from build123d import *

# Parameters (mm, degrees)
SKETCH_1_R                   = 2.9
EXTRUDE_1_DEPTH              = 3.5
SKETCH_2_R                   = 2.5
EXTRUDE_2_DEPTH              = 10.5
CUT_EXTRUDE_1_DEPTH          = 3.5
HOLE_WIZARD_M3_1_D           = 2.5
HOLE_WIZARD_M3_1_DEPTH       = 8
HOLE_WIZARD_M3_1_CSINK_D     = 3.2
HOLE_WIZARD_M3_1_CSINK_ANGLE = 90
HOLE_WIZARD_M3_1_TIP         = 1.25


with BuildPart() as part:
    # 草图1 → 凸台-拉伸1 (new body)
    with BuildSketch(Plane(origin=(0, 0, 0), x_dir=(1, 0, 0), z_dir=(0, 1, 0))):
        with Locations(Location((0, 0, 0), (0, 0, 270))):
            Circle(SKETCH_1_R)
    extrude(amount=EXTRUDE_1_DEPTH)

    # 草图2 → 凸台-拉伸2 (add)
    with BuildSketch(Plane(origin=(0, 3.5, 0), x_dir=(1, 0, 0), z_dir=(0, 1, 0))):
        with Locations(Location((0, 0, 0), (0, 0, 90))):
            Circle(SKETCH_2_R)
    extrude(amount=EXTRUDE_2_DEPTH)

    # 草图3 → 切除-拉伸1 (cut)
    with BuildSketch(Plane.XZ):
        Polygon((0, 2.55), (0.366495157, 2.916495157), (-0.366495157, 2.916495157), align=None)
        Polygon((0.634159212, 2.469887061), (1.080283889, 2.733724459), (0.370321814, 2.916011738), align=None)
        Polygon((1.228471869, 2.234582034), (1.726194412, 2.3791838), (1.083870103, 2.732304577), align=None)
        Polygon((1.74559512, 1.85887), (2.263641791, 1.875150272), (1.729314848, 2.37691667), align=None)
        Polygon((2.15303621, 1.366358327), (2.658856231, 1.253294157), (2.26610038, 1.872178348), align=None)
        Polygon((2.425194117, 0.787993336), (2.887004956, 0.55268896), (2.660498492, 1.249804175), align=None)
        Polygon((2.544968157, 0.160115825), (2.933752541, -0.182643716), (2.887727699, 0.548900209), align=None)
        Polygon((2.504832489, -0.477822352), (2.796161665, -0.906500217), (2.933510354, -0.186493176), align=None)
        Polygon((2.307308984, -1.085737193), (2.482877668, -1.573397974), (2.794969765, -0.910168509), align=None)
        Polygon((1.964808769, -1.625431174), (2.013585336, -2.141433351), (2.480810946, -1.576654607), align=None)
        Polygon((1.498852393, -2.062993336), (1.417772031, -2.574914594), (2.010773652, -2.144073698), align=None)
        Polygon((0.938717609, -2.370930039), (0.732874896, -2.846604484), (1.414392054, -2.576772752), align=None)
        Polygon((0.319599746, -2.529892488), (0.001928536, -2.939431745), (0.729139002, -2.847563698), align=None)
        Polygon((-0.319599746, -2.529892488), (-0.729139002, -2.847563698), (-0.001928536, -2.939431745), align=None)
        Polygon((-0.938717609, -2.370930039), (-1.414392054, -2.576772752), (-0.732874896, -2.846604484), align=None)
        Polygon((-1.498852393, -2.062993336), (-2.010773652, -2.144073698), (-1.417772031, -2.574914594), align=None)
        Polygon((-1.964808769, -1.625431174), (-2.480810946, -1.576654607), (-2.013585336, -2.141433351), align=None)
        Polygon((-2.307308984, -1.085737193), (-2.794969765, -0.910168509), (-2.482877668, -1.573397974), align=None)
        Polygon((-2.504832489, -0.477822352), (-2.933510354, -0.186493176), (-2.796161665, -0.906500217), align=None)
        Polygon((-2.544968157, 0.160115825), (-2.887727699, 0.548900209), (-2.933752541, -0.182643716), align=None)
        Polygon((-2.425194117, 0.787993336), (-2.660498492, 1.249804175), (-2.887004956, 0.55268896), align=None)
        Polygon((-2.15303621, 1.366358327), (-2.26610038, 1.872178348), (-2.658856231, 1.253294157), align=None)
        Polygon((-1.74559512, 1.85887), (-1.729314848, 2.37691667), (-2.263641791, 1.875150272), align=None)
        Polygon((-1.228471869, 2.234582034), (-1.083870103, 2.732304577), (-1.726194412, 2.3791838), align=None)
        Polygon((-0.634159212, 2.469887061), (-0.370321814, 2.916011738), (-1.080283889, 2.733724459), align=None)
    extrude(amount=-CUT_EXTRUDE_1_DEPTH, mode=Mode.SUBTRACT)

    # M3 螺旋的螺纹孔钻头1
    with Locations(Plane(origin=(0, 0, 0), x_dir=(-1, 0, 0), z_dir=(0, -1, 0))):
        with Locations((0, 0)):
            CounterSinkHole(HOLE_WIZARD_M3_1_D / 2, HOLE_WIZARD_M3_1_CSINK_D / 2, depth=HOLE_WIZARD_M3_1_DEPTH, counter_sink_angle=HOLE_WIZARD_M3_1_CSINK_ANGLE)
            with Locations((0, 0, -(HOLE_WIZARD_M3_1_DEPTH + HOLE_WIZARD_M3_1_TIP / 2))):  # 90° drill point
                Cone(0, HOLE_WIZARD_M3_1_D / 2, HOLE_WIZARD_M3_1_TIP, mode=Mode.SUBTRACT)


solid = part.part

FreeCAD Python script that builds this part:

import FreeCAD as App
import Part
import Sketcher

V = App.Vector
Q = App.Units.Quantity

doc = App.newDocument("Part")
body = doc.addObject("PartDesign::Body", "Body")

# Sketch on XZ plane
sketch1 = doc.addObject("Sketcher::SketchObject", "Sketch")
body.addObject(sketch1)
sketch1.AttachmentSupport = (doc.XZ_Plane, [""])
sketch1.MapMode = "FlatFace"
sketch1.addGeometry(Part.Circle(V(0, 0, 0), V(0, 0, 1), 2.9), False)
sketch1.addConstraint(Sketcher.Constraint("Coincident", 0, 3, -1, 1))
sketch1.addConstraint(Sketcher.Constraint("Diameter", 0, 5.8))
pad1 = doc.addObject("PartDesign::Pad", "Pad")
body.addObject(pad1)
pad1.Profile = sketch1
pad1.Length = 3.5
pad1.Reversed = True

# Sketch on XZ plane
sketch2 = doc.addObject("Sketcher::SketchObject", "Sketch001")
body.addObject(sketch2)
sketch2.AttachmentSupport = (doc.XZ_Plane, [""])
sketch2.MapMode = "FlatFace"
sketch2.AttachmentOffset = App.Placement(V(0, 0, -3.5), App.Rotation())
sketch2.addGeometry(Part.Circle(V(0, 0, 0), V(0, 0, 1), 2.5), False)
sketch2.addConstraint(Sketcher.Constraint("Coincident", 0, 3, -1, 1))
sketch2.addConstraint(Sketcher.Constraint("Diameter", 0, 5.0))
pad2 = doc.addObject("PartDesign::Pad", "Pad001")
body.addObject(pad2)
pad2.Profile = sketch2
pad2.Length = 10.5
pad2.Reversed = True

# Sketch on XZ plane
sketch3 = doc.addObject("Sketcher::SketchObject", "Sketch002")
body.addObject(sketch3)
sketch3.AttachmentSupport = (doc.XZ_Plane, [""])
sketch3.MapMode = "FlatFace"
sketch3.addGeometry(Part.LineSegment(V(0, 2.55, 0), V(0.366495, 2.916495, 0)), False)
sketch3.addGeometry(Part.LineSegment(V(0.366495, 2.916495, 0), V(-0.366495, 2.916495, 0)), False)
sketch3.addGeometry(Part.LineSegment(V(-0.366495, 2.916495, 0), V(0, 2.55, 0)), False)
sketch3.addGeometry(Part.LineSegment(V(0.634159, 2.469887, 0), V(1.080284, 2.733724, 0)), False)
sketch3.addGeometry(Part.LineSegment(V(1.080284, 2.733724, 0), V(0.370322, 2.916012, 0)), False)
sketch3.addGeometry(Part.LineSegment(V(0.370322, 2.916012, 0), V(0.634159, 2.469887, 0)), False)
sketch3.addGeometry(Part.LineSegment(V(1.228472, 2.234582, 0), V(1.726194, 2.379184, 0)), False)
sketch3.addGeometry(Part.LineSegment(V(1.726194, 2.379184, 0), V(1.08387, 2.732305, 0)), False)
sketch3.addGeometry(Part.LineSegment(V(1.08387, 2.732305, 0), V(1.228472, 2.234582, 0)), False)
sketch3.addGeometry(Part.LineSegment(V(1.745595, 1.85887, 0), V(2.263642, 1.87515, 0)), False)
sketch3.addGeometry(Part.LineSegment(V(2.263642, 1.87515, 0), V(1.729315, 2.376917, 0)), False)
sketch3.addGeometry(Part.LineSegment(V(1.729315, 2.376917, 0), V(1.745595, 1.85887, 0)), False)
sketch3.addGeometry(Part.LineSegment(V(2.153036, 1.366358, 0), V(2.658856, 1.253294, 0)), False)
sketch3.addGeometry(Part.LineSegment(V(2.658856, 1.253294, 0), V(2.2661, 1.872178, 0)), False)
sketch3.addGeometry(Part.LineSegment(V(2.2661, 1.872178, 0), V(2.153036, 1.366358, 0)), False)
sketch3.addGeometry(Part.LineSegment(V(2.425194, 0.787993, 0), V(2.887005, 0.552689, 0)), False)
sketch3.addGeometry(Part.LineSegment(V(2.887005, 0.552689, 0), V(2.660498, 1.249804, 0)), False)
sketch3.addGeometry(Part.LineSegment(V(2.660498, 1.249804, 0), V(2.425194, 0.787993, 0)), False)
sketch3.addGeometry(Part.LineSegment(V(2.544968, 0.160116, 0), V(2.933753, -0.182644, 0)), False)
sketch3.addGeometry(Part.LineSegment(V(2.933753, -0.182644, 0), V(2.887728, 0.5489, 0)), False)
sketch3.addGeometry(Part.LineSegment(V(2.887728, 0.5489, 0), V(2.544968, 0.160116, 0)), False)
sketch3.addGeometry(Part.LineSegment(V(2.504832, -0.477822, 0), V(2.796162, -0.9065, 0)), False)
sketch3.addGeometry(Part.LineSegment(V(2.796162, -0.9065, 0), V(2.93351, -0.186493, 0)), False)
sketch3.addGeometry(Part.LineSegment(V(2.93351, -0.186493, 0), V(2.504832, -0.477822, 0)), False)
sketch3.addGeometry(Part.LineSegment(V(2.307309, -1.085737, 0), V(2.482878, -1.573398, 0)), False)
sketch3.addGeometry(Part.LineSegment(V(2.482878, -1.573398, 0), V(2.79497, -0.910169, 0)), False)
sketch3.addGeometry(Part.LineSegment(V(2.79497, -0.910169, 0), V(2.307309, -1.085737, 0)), False)
sketch3.addGeometry(Part.LineSegment(V(1.964809, -1.625431, 0), V(2.013585, -2.141433, 0)), False)
sketch3.addGeometry(Part.LineSegment(V(2.013585, -2.141433, 0), V(2.480811, -1.576655, 0)), False)
sketch3.addGeometry(Part.LineSegment(V(2.480811, -1.576655, 0), V(1.964809, -1.625431, 0)), False)
sketch3.addGeometry(Part.LineSegment(V(1.498852, -2.062993, 0), V(1.417772, -2.574915, 0)), False)
sketch3.addGeometry(Part.LineSegment(V(1.417772, -2.574915, 0), V(2.010774, -2.144074, 0)), False)
sketch3.addGeometry(Part.LineSegment(V(2.010774, -2.144074, 0), V(1.498852, -2.062993, 0)), False)
sketch3.addGeometry(Part.LineSegment(V(0.938718, -2.37093, 0), V(0.732875, -2.846604, 0)), False)
sketch3.addGeometry(Part.LineSegment(V(0.732875, -2.846604, 0), V(1.414392, -2.576773, 0)), False)
sketch3.addGeometry(Part.LineSegment(V(1.414392, -2.576773, 0), V(0.938718, -2.37093, 0)), False)
sketch3.addGeometry(Part.LineSegment(V(0.3196, -2.529892, 0), V(0.001929, -2.939432, 0)), False)
sketch3.addGeometry(Part.LineSegment(V(0.001929, -2.939432, 0), V(0.729139, -2.847564, 0)), False)
sketch3.addGeometry(Part.LineSegment(V(0.729139, -2.847564, 0), V(0.3196, -2.529892, 0)), False)
sketch3.addGeometry(Part.LineSegment(V(-0.3196, -2.529892, 0), V(-0.729139, -2.847564, 0)), False)
sketch3.addGeometry(Part.LineSegment(V(-0.729139, -2.847564, 0), V(-0.001929, -2.939432, 0)), False)
sketch3.addGeometry(Part.LineSegment(V(-0.001929, -2.939432, 0), V(-0.3196, -2.529892, 0)), False)
sketch3.addGeometry(Part.LineSegment(V(-0.938718, -2.37093, 0), V(-1.414392, -2.576773, 0)), False)
sketch3.addGeometry(Part.LineSegment(V(-1.414392, -2.576773, 0), V(-0.732875, -2.846604, 0)), False)
sketch3.addGeometry(Part.LineSegment(V(-0.732875, -2.846604, 0), V(-0.938718, -2.37093, 0)), False)
sketch3.addGeometry(Part.LineSegment(V(-1.498852, -2.062993, 0), V(-2.010774, -2.144074, 0)), False)
sketch3.addGeometry(Part.LineSegment(V(-2.010774, -2.144074, 0), V(-1.417772, -2.574915, 0)), False)
sketch3.addGeometry(Part.LineSegment(V(-1.417772, -2.574915, 0), V(-1.498852, -2.062993, 0)), False)
sketch3.addGeometry(Part.LineSegment(V(-1.964809, -1.625431, 0), V(-2.480811, -1.576655, 0)), False)
sketch3.addGeometry(Part.LineSegment(V(-2.480811, -1.576655, 0), V(-2.013585, -2.141433, 0)), False)
sketch3.addGeometry(Part.LineSegment(V(-2.013585, -2.141433, 0), V(-1.964809, -1.625431, 0)), False)
sketch3.addGeometry(Part.LineSegment(V(-2.307309, -1.085737, 0), V(-2.79497, -0.910169, 0)), False)
sketch3.addGeometry(Part.LineSegment(V(-2.79497, -0.910169, 0), V(-2.482878, -1.573398, 0)), False)
sketch3.addGeometry(Part.LineSegment(V(-2.482878, -1.573398, 0), V(-2.307309, -1.085737, 0)), False)
sketch3.addGeometry(Part.LineSegment(V(-2.504832, -0.477822, 0), V(-2.93351, -0.186493, 0)), False)
sketch3.addGeometry(Part.LineSegment(V(-2.93351, -0.186493, 0), V(-2.796162, -0.9065, 0)), False)
sketch3.addGeometry(Part.LineSegment(V(-2.796162, -0.9065, 0), V(-2.504832, -0.477822, 0)), False)
sketch3.addGeometry(Part.LineSegment(V(-2.544968, 0.160116, 0), V(-2.887728, 0.5489, 0)), False)
sketch3.addGeometry(Part.LineSegment(V(-2.887728, 0.5489, 0), V(-2.933753, -0.182644, 0)), False)
sketch3.addGeometry(Part.LineSegment(V(-2.933753, -0.182644, 0), V(-2.544968, 0.160116, 0)), False)
sketch3.addGeometry(Part.LineSegment(V(-2.425194, 0.787993, 0), V(-2.660498, 1.249804, 0)), False)
sketch3.addGeometry(Part.LineSegment(V(-2.660498, 1.249804, 0), V(-2.887005, 0.552689, 0)), False)
sketch3.addGeometry(Part.LineSegment(V(-2.887005, 0.552689, 0), V(-2.425194, 0.787993, 0)), False)
sketch3.addGeometry(Part.LineSegment(V(-2.153036, 1.366358, 0), V(-2.2661, 1.872178, 0)), False)
sketch3.addGeometry(Part.LineSegment(V(-2.2661, 1.872178, 0), V(-2.658856, 1.253294, 0)), False)
sketch3.addGeometry(Part.LineSegment(V(-2.658856, 1.253294, 0), V(-2.153036, 1.366358, 0)), False)
sketch3.addGeometry(Part.LineSegment(V(-1.745595, 1.85887, 0), V(-1.729315, 2.376917, 0)), False)
sketch3.addGeometry(Part.LineSegment(V(-1.729315, 2.376917, 0), V(-2.263642, 1.87515, 0)), False)
sketch3.addGeometry(Part.LineSegment(V(-2.263642, 1.87515, 0), V(-1.745595, 1.85887, 0)), False)
sketch3.addGeometry(Part.LineSegment(V(-1.228472, 2.234582, 0), V(-1.08387, 2.732305, 0)), False)
sketch3.addGeometry(Part.LineSegment(V(-1.08387, 2.732305, 0), V(-1.726194, 2.379184, 0)), False)
sketch3.addGeometry(Part.LineSegment(V(-1.726194, 2.379184, 0), V(-1.228472, 2.234582, 0)), False)
sketch3.addGeometry(Part.LineSegment(V(-0.634159, 2.469887, 0), V(-0.370322, 2.916012, 0)), False)
sketch3.addGeometry(Part.LineSegment(V(-0.370322, 2.916012, 0), V(-1.080284, 2.733724, 0)), False)
sketch3.addGeometry(Part.LineSegment(V(-1.080284, 2.733724, 0), V(-0.634159, 2.469887, 0)), False)
sketch3.addConstraint(Sketcher.Constraint("Coincident", 0, 2, 1, 1))
sketch3.addConstraint(Sketcher.Constraint("Coincident", 1, 2, 2, 1))
sketch3.addConstraint(Sketcher.Constraint("Coincident", 2, 2, 0, 1))
sketch3.addConstraint(Sketcher.Constraint("Coincident", 3, 2, 4, 1))
sketch3.addConstraint(Sketcher.Constraint("Coincident", 4, 2, 5, 1))
sketch3.addConstraint(Sketcher.Constraint("Coincident", 5, 2, 3, 1))
sketch3.addConstraint(Sketcher.Constraint("Coincident", 6, 2, 7, 1))
sketch3.addConstraint(Sketcher.Constraint("Coincident", 7, 2, 8, 1))
sketch3.addConstraint(Sketcher.Constraint("Coincident", 8, 2, 6, 1))
sketch3.addConstraint(Sketcher.Constraint("Coincident", 9, 2, 10, 1))
sketch3.addConstraint(Sketcher.Constraint("Coincident", 10, 2, 11, 1))
sketch3.addConstraint(Sketcher.Constraint("Coincident", 11, 2, 9, 1))
sketch3.addConstraint(Sketcher.Constraint("Coincident", 12, 2, 13, 1))
sketch3.addConstraint(Sketcher.Constraint("Coincident", 13, 2, 14, 1))
sketch3.addConstraint(Sketcher.Constraint("Coincident", 14, 2, 12, 1))
sketch3.addConstraint(Sketcher.Constraint("Coincident", 15, 2, 16, 1))
sketch3.addConstraint(Sketcher.Constraint("Coincident", 16, 2, 17, 1))
sketch3.addConstraint(Sketcher.Constraint("Coincident", 17, 2, 15, 1))
sketch3.addConstraint(Sketcher.Constraint("Coincident", 18, 2, 19, 1))
sketch3.addConstraint(Sketcher.Constraint("Coincident", 19, 2, 20, 1))
sketch3.addConstraint(Sketcher.Constraint("Coincident", 20, 2, 18, 1))
sketch3.addConstraint(Sketcher.Constraint("Coincident", 21, 2, 22, 1))
sketch3.addConstraint(Sketcher.Constraint("Coincident", 22, 2, 23, 1))
sketch3.addConstraint(Sketcher.Constraint("Coincident", 23, 2, 21, 1))
sketch3.addConstraint(Sketcher.Constraint("Coincident", 24, 2, 25, 1))
sketch3.addConstraint(Sketcher.Constraint("Coincident", 25, 2, 26, 1))
sketch3.addConstraint(Sketcher.Constraint("Coincident", 26, 2, 24, 1))
sketch3.addConstraint(Sketcher.Constraint("Coincident", 27, 2, 28, 1))
sketch3.addConstraint(Sketcher.Constraint("Coincident", 28, 2, 29, 1))
sketch3.addConstraint(Sketcher.Constraint("Coincident", 29, 2, 27, 1))
sketch3.addConstraint(Sketcher.Constraint("Coincident", 30, 2, 31, 1))
sketch3.addConstraint(Sketcher.Constraint("Coincident", 31, 2, 32, 1))
sketch3.addConstraint(Sketcher.Constraint("Coincident", 32, 2, 30, 1))
sketch3.addConstraint(Sketcher.Constraint("Coincident", 33, 2, 34, 1))
sketch3.addConstraint(Sketcher.Constraint("Coincident", 34, 2, 35, 1))
sketch3.addConstraint(Sketcher.Constraint("Coincident", 35, 2, 33, 1))
sketch3.addConstraint(Sketcher.Constraint("Coincident", 36, 2, 37, 1))
sketch3.addConstraint(Sketcher.Constraint("Coincident", 37, 2, 38, 1))
sketch3.addConstraint(Sketcher.Constraint("Coincident", 38, 2, 36, 1))
sketch3.addConstraint(Sketcher.Constraint("Coincident", 39, 2, 40, 1))
sketch3.addConstraint(Sketcher.Constraint("Coincident", 40, 2, 41, 1))
sketch3.addConstraint(Sketcher.Constraint("Coincident", 41, 2, 39, 1))
sketch3.addConstraint(Sketcher.Constraint("Coincident", 42, 2, 43, 1))
sketch3.addConstraint(Sketcher.Constraint("Coincident", 43, 2, 44, 1))
sketch3.addConstraint(Sketcher.Constraint("Coincident", 44, 2, 42, 1))
sketch3.addConstraint(Sketcher.Constraint("Coincident", 45, 2, 46, 1))
sketch3.addConstraint(Sketcher.Constraint("Coincident", 46, 2, 47, 1))
sketch3.addConstraint(Sketcher.Constraint("Coincident", 47, 2, 45, 1))
sketch3.addConstraint(Sketcher.Constraint("Coincident", 48, 2, 49, 1))
sketch3.addConstraint(Sketcher.Constraint("Coincident", 49, 2, 50, 1))
sketch3.addConstraint(Sketcher.Constraint("Coincident", 50, 2, 48, 1))
sketch3.addConstraint(Sketcher.Constraint("Coincident", 51, 2, 52, 1))
sketch3.addConstraint(Sketcher.Constraint("Coincident", 52, 2, 53, 1))
sketch3.addConstraint(Sketcher.Constraint("Coincident", 53, 2, 51, 1))
sketch3.addConstraint(Sketcher.Constraint("Coincident", 54, 2, 55, 1))
sketch3.addConstraint(Sketcher.Constraint("Coincident", 55, 2, 56, 1))
sketch3.addConstraint(Sketcher.Constraint("Coincident", 56, 2, 54, 1))
sketch3.addConstraint(Sketcher.Constraint("Coincident", 57, 2, 58, 1))
sketch3.addConstraint(Sketcher.Constraint("Coincident", 58, 2, 59, 1))
sketch3.addConstraint(Sketcher.Constraint("Coincident", 59, 2, 57, 1))
sketch3.addConstraint(Sketcher.Constraint("Coincident", 60, 2, 61, 1))
sketch3.addConstraint(Sketcher.Constraint("Coincident", 61, 2, 62, 1))
sketch3.addConstraint(Sketcher.Constraint("Coincident", 62, 2, 60, 1))
sketch3.addConstraint(Sketcher.Constraint("Coincident", 63, 2, 64, 1))
sketch3.addConstraint(Sketcher.Constraint("Coincident", 64, 2, 65, 1))
sketch3.addConstraint(Sketcher.Constraint("Coincident", 65, 2, 63, 1))
sketch3.addConstraint(Sketcher.Constraint("Coincident", 66, 2, 67, 1))
sketch3.addConstraint(Sketcher.Constraint("Coincident", 67, 2, 68, 1))
sketch3.addConstraint(Sketcher.Constraint("Coincident", 68, 2, 66, 1))
sketch3.addConstraint(Sketcher.Constraint("Coincident", 69, 2, 70, 1))
sketch3.addConstraint(Sketcher.Constraint("Coincident", 70, 2, 71, 1))
sketch3.addConstraint(Sketcher.Constraint("Coincident", 71, 2, 69, 1))
sketch3.addConstraint(Sketcher.Constraint("Coincident", 72, 2, 73, 1))
sketch3.addConstraint(Sketcher.Constraint("Coincident", 73, 2, 74, 1))
sketch3.addConstraint(Sketcher.Constraint("Coincident", 74, 2, 72, 1))
sketch3.addConstraint(Sketcher.Constraint("Horizontal", 1))
sketch3.addConstraint(Sketcher.Constraint("Symmetric", 37, 2, 39, 2, -2))
sketch3.addConstraint(Sketcher.Constraint("Symmetric", 36, 2, 40, 2, -2))
sketch3.addConstraint(Sketcher.Constraint("Symmetric", 38, 2, 41, 2, -2))
sketch3.addConstraint(Sketcher.Constraint("Symmetric", 34, 2, 42, 2, -2))
sketch3.addConstraint(Sketcher.Constraint("Symmetric", 33, 2, 43, 2, -2))
sketch3.addConstraint(Sketcher.Constraint("Symmetric", 35, 2, 44, 2, -2))
sketch3.addConstraint(Sketcher.Constraint("Symmetric", 31, 2, 45, 2, -2))
sketch3.addConstraint(Sketcher.Constraint("Symmetric", 30, 2, 46, 2, -2))
sketch3.addConstraint(Sketcher.Constraint("Symmetric", 32, 2, 47, 2, -2))
sketch3.addConstraint(Sketcher.Constraint("Symmetric", 28, 2, 48, 2, -2))
sketch3.addConstraint(Sketcher.Constraint("Symmetric", 27, 2, 49, 2, -2))
sketch3.addConstraint(Sketcher.Constraint("Symmetric", 29, 2, 50, 2, -2))
sketch3.addConstraint(Sketcher.Constraint("Symmetric", 25, 2, 51, 2, -2))
sketch3.addConstraint(Sketcher.Constraint("Symmetric", 24, 2, 52, 2, -2))
sketch3.addConstraint(Sketcher.Constraint("Symmetric", 26, 2, 53, 2, -2))
sketch3.addConstraint(Sketcher.Constraint("Symmetric", 22, 2, 54, 2, -2))
sketch3.addConstraint(Sketcher.Constraint("Symmetric", 21, 2, 55, 2, -2))
sketch3.addConstraint(Sketcher.Constraint("Symmetric", 23, 2, 56, 2, -2))
sketch3.addConstraint(Sketcher.Constraint("Symmetric", 19, 2, 57, 2, -2))
sketch3.addConstraint(Sketcher.Constraint("Symmetric", 18, 2, 58, 2, -2))
sketch3.addConstraint(Sketcher.Constraint("Symmetric", 20, 2, 59, 2, -2))
sketch3.addConstraint(Sketcher.Constraint("Symmetric", 16, 2, 60, 2, -2))
sketch3.addConstraint(Sketcher.Constraint("Symmetric", 15, 2, 61, 2, -2))
sketch3.addConstraint(Sketcher.Constraint("Symmetric", 17, 2, 62, 2, -2))
sketch3.addConstraint(Sketcher.Constraint("Symmetric", 13, 2, 63, 2, -2))
sketch3.addConstraint(Sketcher.Constraint("Symmetric", 12, 2, 64, 2, -2))
sketch3.addConstraint(Sketcher.Constraint("Symmetric", 14, 2, 65, 2, -2))
sketch3.addConstraint(Sketcher.Constraint("Symmetric", 10, 2, 66, 2, -2))
sketch3.addConstraint(Sketcher.Constraint("Symmetric", 9, 2, 67, 2, -2))
sketch3.addConstraint(Sketcher.Constraint("Symmetric", 11, 2, 68, 2, -2))
sketch3.addConstraint(Sketcher.Constraint("Symmetric", 7, 2, 69, 2, -2))
sketch3.addConstraint(Sketcher.Constraint("Symmetric", 6, 2, 70, 2, -2))
sketch3.addConstraint(Sketcher.Constraint("Symmetric", 8, 2, 71, 2, -2))
sketch3.addConstraint(Sketcher.Constraint("Symmetric", 4, 2, 72, 2, -2))
sketch3.addConstraint(Sketcher.Constraint("Symmetric", 3, 2, 73, 2, -2))
sketch3.addConstraint(Sketcher.Constraint("Symmetric", 5, 2, 74, 2, -2))
sketch3.addConstraint(Sketcher.Constraint("PointOnObject", 2, 2, -2))
sketch3.addConstraint(Sketcher.Constraint("Perpendicular", 0, 2))
sketch3.addConstraint(Sketcher.Constraint("Perpendicular", 3, 5))
sketch3.addConstraint(Sketcher.Constraint("Perpendicular", 6, 8))
sketch3.addConstraint(Sketcher.Constraint("Perpendicular", 9, 11))
sketch3.addConstraint(Sketcher.Constraint("Perpendicular", 12, 14))
sketch3.addConstraint(Sketcher.Constraint("Perpendicular", 15, 17))
sketch3.addConstraint(Sketcher.Constraint("Perpendicular", 18, 20))
sketch3.addConstraint(Sketcher.Constraint("Perpendicular", 21, 23))
sketch3.addConstraint(Sketcher.Constraint("Perpendicular", 24, 26))
sketch3.addConstraint(Sketcher.Constraint("Perpendicular", 27, 29))
sketch3.addConstraint(Sketcher.Constraint("Perpendicular", 30, 32))
sketch3.addConstraint(Sketcher.Constraint("Perpendicular", 33, 35))
sketch3.addConstraint(Sketcher.Constraint("Perpendicular", 36, 38))
sketch3.addConstraint(Sketcher.Constraint("Equal", 0, 2))
sketch3.addConstraint(Sketcher.Constraint("Equal", 2, 3))
sketch3.addConstraint(Sketcher.Constraint("Equal", 3, 5))
sketch3.addConstraint(Sketcher.Constraint("Equal", 5, 6))
sketch3.addConstraint(Sketcher.Constraint("Equal", 4, 7))
sketch3.addConstraint(Sketcher.Constraint("Equal", 8, 9))
sketch3.addConstraint(Sketcher.Constraint("Equal", 7, 10))
sketch3.addConstraint(Sketcher.Constraint("Equal", 11, 12))
sketch3.addConstraint(Sketcher.Constraint("Equal", 10, 13))
sketch3.addConstraint(Sketcher.Constraint("Equal", 14, 15))
sketch3.addConstraint(Sketcher.Constraint("Equal", 13, 16))
sketch3.addConstraint(Sketcher.Constraint("Equal", 17, 18))
sketch3.addConstraint(Sketcher.Constraint("Equal", 16, 19))
sketch3.addConstraint(Sketcher.Constraint("Equal", 20, 21))
sketch3.addConstraint(Sketcher.Constraint("Equal", 19, 22))
sketch3.addConstraint(Sketcher.Constraint("Equal", 23, 24))
sketch3.addConstraint(Sketcher.Constraint("Equal", 22, 25))
sketch3.addConstraint(Sketcher.Constraint("Equal", 26, 27))
sketch3.addConstraint(Sketcher.Constraint("Equal", 25, 28))
sketch3.addConstraint(Sketcher.Constraint("Equal", 29, 30))
sketch3.addConstraint(Sketcher.Constraint("Equal", 28, 31))
sketch3.addConstraint(Sketcher.Constraint("Equal", 32, 33))
sketch3.addConstraint(Sketcher.Constraint("Equal", 31, 34))
sketch3.addConstraint(Sketcher.Constraint("Equal", 35, 36))
sketch3.addConstraint(Sketcher.Constraint("Equal", 34, 37))
sketch3.addConstraint(Sketcher.Constraint("Angle", 15, Q("-27 deg")))
sketch3.addConstraint(Sketcher.Constraint("Angle", 30, Q("-99 deg")))
sketch3.addConstraint(Sketcher.Constraint("Angle", 3, Q("30.6 deg")))
sketch3.addConstraint(Sketcher.Constraint("Angle", 6, Q("16.2 deg")))
sketch3.addConstraint(Sketcher.Constraint("Angle", 9, Q("1.8 deg")))
sketch3.addConstraint(Sketcher.Constraint("Angle", 12, Q("-12.6 deg")))
sketch3.addConstraint(Sketcher.Constraint("Angle", 18, Q("-41.4 deg")))
sketch3.addConstraint(Sketcher.Constraint("Angle", 21, Q("-55.8 deg")))
sketch3.addConstraint(Sketcher.Constraint("Angle", 24, Q("-70.2 deg")))
sketch3.addConstraint(Sketcher.Constraint("Angle", 27, Q("-84.6 deg")))
sketch3.addConstraint(Sketcher.Constraint("Angle", 33, Q("-113.4 deg")))
sketch3.addConstraint(Sketcher.Constraint("Angle", 36, Q("-127.8 deg")))
sketch3.addConstraint(Sketcher.Constraint("DistanceY", -1, 1, 2, 2, 2.55))
sketch3.addConstraint(Sketcher.Constraint("DistanceX", 1, 2, 1, 1, 0.73299))
sketch3.addConstraint(Sketcher.Constraint("DistanceX", -1, 1, 13, 2, 2.2661))
sketch3.addConstraint(Sketcher.Constraint("DistanceX", -1, 1, 16, 2, 2.660498))
sketch3.addConstraint(Sketcher.Constraint("DistanceY", -1, 1, 19, 2, 0.5489))
sketch3.addConstraint(Sketcher.Constraint("DistanceY", 21, 2, -1, 1, 0.9065))
sketch3.addConstraint(Sketcher.Constraint("DistanceX", -1, 1, 38, 2, 0.3196))
sketch3.addConstraint(Sketcher.Constraint("DistanceX", -1, 1, 4, 2, 0.370322))
sketch3.addConstraint(Sketcher.Constraint("DistanceY", -1, 1, 4, 2, 2.916012))
sketch3.addConstraint(Sketcher.Constraint("DistanceX", -1, 1, 7, 2, 1.08387))
sketch3.addConstraint(Sketcher.Constraint("DistanceX", -1, 1, 9, 2, 2.263642))
sketch3.addConstraint(Sketcher.Constraint("DistanceY", -1, 1, 9, 2, 1.87515))
sketch3.addConstraint(Sketcher.Constraint("DistanceY", -1, 1, 13, 2, 1.872178))
sketch3.addConstraint(Sketcher.Constraint("DistanceY", -1, 1, 15, 2, 0.552689))
sketch3.addConstraint(Sketcher.Constraint("DistanceX", -1, 1, 20, 2, 2.544968))
sketch3.addConstraint(Sketcher.Constraint("DistanceX", -1, 1, 21, 2, 2.796162))
sketch3.addConstraint(Sketcher.Constraint("DistanceX", -1, 1, 25, 2, 2.79497))
sketch3.addConstraint(Sketcher.Constraint("DistanceY", 25, 2, -1, 1, 0.910169))
sketch3.addConstraint(Sketcher.Constraint("DistanceX", -1, 1, 28, 2, 2.480811))
sketch3.addConstraint(Sketcher.Constraint("DistanceY", 29, 2, -1, 1, 1.625431))
sketch3.addConstraint(Sketcher.Constraint("DistanceY", 35, 2, -1, 1, 2.37093))
sketch3.addConstraint(Sketcher.Constraint("DistanceY", 36, 2, -1, 1, 2.939432))
sketch3.addConstraint(Sketcher.Constraint("DistanceY", -1, 1, 6, 2, 2.379184))
sketch3.addConstraint(Sketcher.Constraint("DistanceX", -1, 1, 30, 2, 1.417772))
sketch3.addConstraint(Sketcher.Constraint("DistanceY", 30, 2, -1, 1, 2.574915))
sketch3.addConstraint(Sketcher.Constraint("DistanceX", -1, 1, 33, 2, 0.732875))
pocket1 = doc.addObject("PartDesign::Pocket", "Pocket")
body.addObject(pocket1)
pocket1.Profile = sketch3
pocket1.Length = 3.5

# Sketch on XZ plane
sketch4 = doc.addObject("Sketcher::SketchObject", "Sketch003")
body.addObject(sketch4)
sketch4.AttachmentSupport = (doc.XZ_Plane, [""])
sketch4.MapMode = "FlatFace"
sketch4.addGeometry(Part.Circle(V(0, 0, 0), V(0, 0, 1), 1.25), False)
sketch4.addConstraint(Sketcher.Constraint("Coincident", 0, 3, -1, 1))
sketch4.addConstraint(Sketcher.Constraint("Diameter", 0, 2.5))
doc.recompute()
hole = doc.addObject("PartDesign::Hole", "Hole")
body.addObject(hole)
hole.Profile = sketch4
hole.ThreadType = "None"
hole.Diameter = 2.5
hole.DepthType = "Dimension"
hole.Depth = 8
hole.DrillPoint = "Angled"
hole.DrillPointAngle = 90
hole.HoleCutType = "Countersink"
hole.HoleCutDiameter = 3.2
hole.HoleCutCountersinkAngle = 90

doc.recompute()
